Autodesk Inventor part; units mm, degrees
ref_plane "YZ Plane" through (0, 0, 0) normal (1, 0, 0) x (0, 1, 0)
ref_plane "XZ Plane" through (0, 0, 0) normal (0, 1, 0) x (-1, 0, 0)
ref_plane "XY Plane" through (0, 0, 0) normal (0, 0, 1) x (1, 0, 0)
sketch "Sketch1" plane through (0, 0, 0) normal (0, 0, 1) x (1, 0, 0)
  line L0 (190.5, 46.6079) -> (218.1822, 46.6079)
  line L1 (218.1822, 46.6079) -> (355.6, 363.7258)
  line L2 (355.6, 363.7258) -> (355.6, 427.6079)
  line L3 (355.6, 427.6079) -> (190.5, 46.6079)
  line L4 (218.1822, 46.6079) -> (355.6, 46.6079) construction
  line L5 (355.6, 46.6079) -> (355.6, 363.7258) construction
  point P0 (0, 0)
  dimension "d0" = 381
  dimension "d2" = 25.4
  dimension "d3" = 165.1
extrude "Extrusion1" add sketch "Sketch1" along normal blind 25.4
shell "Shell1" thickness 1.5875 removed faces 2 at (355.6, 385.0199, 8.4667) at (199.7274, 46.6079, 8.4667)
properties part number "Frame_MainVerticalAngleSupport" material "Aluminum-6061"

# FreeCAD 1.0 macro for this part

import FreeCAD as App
import Part
import Sketcher
from FreeCAD import Vector
Q = App.Units.Quantity


def faces_at(feature, points):
    """Names of the faces that lie closest to the given points."""
    faces = feature.Shape.Faces
    near = lambda p: min(range(len(faces)), key=lambda i: faces[i].distToShape(Part.Vertex(*p))[0])
    return sorted({f"Face{near(p) + 1}" for p in points})

doc = App.newDocument("Part")
body = doc.addObject("PartDesign::Body", "Body")

sketch1 = doc.addObject("Sketcher::SketchObject", "Sketch")
body.addObject(sketch1)
sketch1.AttachmentSupport = (doc.XY_Plane, [""])
sketch1.MapMode = "FlatFace"
sketch1.addGeometry([
    Part.LineSegment(Vector(355.6, 427.6079, 0), Vector(190.5, 46.6079, 0)),
    Part.LineSegment(Vector(190.5, 46.6079, 0), Vector(218.1822, 46.6079, 0)),
    Part.LineSegment(Vector(218.1822, 46.6079, 0), Vector(355.6, 363.7258, 0)),
    Part.LineSegment(Vector(355.6, 363.7258, 0), Vector(355.6, 427.6079, 0)),
], False)
sketch1.addConstraint([
    Sketcher.Constraint("Coincident", 0, 2, 1, 1),
    Sketcher.Constraint("Coincident", 1, 2, 2, 1),
    Sketcher.Constraint("Coincident", 2, 2, 3, 1),
    Sketcher.Constraint("Coincident", 3, 2, 0, 1),
    Sketcher.Constraint("Horizontal", 1),
    Sketcher.Constraint("Vertical", 3),
    Sketcher.Constraint("Parallel", 0, 2),
    Sketcher.Constraint("DistanceY", 1, 2, 3, 2, Q("15 in")),
    Sketcher.Constraint("DistanceX", 0, 2, 2, 2, Q("6.5 in")),
    Sketcher.Constraint("DistanceX", -1, 1, 2, 2, Q("14 in")),
    Sketcher.Constraint("DistanceX", 1, 1, 1, 2, 27.6822),
    Sketcher.Constraint("DistanceY", -1, 1, 0, 2, 46.608),
])
pad1 = doc.addObject("PartDesign::Pad", "Pad")
body.addObject(pad1)
pad1.Profile = sketch1
pad1.Length = Q("1 in")
doc.recompute()

thickness = doc.addObject("PartDesign::Thickness", "Thickness")
body.addObject(thickness)
thickness.Base = (pad1, faces_at(pad1, [(355.6, 385.02, 8.467), (199.727, 46.608, 8.467)]))
thickness.Value = Q("0.0625 in")
thickness.Reversed = True
thickness.Join = "Intersection"

doc.recompute()
